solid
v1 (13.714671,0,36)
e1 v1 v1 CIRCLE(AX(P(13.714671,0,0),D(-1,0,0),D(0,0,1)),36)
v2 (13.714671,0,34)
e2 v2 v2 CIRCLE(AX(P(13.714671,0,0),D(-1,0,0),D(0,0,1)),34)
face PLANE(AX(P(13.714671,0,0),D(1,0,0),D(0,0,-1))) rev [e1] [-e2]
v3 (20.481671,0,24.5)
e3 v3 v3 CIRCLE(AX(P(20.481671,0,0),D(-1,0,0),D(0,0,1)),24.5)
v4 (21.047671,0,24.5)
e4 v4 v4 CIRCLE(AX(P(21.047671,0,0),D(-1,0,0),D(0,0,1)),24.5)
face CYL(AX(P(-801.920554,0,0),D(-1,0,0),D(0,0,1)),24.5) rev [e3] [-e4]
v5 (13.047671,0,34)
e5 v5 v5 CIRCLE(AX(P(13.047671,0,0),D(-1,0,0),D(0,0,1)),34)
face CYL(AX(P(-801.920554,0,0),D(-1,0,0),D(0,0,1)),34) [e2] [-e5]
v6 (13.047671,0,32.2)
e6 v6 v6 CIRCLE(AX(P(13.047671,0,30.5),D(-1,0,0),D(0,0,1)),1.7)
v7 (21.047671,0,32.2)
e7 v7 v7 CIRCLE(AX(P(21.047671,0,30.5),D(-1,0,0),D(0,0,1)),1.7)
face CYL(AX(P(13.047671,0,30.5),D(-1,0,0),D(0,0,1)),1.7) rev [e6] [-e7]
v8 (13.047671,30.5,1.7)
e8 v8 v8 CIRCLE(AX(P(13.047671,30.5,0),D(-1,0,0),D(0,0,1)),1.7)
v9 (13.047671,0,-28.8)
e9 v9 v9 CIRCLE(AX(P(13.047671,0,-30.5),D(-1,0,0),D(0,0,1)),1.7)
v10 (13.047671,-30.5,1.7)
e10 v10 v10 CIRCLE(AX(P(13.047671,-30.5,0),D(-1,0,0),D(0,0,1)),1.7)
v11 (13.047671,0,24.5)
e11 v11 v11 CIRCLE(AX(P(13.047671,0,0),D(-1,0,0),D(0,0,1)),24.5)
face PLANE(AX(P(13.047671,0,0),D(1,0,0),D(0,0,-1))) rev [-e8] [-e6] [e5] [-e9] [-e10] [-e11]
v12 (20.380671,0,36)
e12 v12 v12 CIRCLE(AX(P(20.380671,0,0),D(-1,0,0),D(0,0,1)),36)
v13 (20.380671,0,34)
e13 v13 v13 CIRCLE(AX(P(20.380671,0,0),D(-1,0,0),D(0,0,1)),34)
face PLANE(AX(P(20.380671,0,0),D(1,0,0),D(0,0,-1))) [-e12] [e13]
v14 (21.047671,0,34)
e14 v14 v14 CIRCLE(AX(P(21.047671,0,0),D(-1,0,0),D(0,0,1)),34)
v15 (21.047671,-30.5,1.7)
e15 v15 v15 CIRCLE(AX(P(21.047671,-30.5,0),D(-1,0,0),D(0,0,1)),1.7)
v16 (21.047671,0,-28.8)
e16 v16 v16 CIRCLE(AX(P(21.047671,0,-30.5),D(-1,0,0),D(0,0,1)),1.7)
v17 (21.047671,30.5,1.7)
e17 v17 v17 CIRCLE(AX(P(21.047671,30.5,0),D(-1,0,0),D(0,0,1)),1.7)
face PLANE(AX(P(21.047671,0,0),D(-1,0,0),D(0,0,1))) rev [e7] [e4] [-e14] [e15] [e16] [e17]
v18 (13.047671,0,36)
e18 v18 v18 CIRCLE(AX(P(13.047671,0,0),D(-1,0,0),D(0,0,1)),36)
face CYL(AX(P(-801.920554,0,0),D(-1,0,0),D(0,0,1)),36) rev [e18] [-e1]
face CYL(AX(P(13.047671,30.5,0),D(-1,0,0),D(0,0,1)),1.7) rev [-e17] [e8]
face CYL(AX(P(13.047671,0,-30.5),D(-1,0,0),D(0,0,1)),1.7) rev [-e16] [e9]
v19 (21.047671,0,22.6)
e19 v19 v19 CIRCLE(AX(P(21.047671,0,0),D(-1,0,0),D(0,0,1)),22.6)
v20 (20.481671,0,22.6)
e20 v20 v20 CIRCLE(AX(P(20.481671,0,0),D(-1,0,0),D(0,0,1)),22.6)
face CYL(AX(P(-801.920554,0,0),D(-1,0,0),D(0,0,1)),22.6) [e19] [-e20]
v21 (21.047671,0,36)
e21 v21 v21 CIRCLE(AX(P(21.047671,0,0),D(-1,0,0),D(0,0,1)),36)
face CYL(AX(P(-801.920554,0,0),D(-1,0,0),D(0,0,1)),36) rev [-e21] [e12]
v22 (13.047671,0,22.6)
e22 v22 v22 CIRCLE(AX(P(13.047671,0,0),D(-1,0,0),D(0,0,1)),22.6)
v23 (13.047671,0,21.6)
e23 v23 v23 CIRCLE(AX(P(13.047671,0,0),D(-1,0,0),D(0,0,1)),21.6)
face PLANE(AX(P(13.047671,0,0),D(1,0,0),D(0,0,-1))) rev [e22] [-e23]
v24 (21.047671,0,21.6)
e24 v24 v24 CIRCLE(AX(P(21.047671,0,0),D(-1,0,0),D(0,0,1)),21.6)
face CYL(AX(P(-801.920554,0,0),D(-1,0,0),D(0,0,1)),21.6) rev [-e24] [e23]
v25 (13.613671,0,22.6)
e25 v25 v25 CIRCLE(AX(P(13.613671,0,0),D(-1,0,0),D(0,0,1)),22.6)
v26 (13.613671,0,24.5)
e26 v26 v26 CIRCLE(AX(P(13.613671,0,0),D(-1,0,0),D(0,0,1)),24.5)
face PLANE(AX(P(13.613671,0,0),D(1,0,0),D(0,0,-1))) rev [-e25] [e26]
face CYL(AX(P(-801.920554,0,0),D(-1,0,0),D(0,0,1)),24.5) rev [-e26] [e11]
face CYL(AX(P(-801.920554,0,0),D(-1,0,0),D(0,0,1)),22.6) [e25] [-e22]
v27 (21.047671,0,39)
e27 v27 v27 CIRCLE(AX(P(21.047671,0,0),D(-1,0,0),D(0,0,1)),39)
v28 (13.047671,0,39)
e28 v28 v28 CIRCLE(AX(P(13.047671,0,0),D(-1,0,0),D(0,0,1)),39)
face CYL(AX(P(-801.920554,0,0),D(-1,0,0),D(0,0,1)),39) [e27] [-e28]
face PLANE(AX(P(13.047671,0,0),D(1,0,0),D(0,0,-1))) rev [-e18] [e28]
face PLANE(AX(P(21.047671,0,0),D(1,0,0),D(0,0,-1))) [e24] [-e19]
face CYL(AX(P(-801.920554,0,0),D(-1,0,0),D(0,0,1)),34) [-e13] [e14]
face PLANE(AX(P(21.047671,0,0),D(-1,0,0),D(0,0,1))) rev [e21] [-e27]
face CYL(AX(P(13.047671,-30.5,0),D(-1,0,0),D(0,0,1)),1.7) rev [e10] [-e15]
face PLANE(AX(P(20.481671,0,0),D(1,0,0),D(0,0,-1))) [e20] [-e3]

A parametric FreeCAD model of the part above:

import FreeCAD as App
import Part
import Sketcher
Q = App.Units.Quantity


def add_polygon(sketch, points):
    """Adds a closed chain of lines whose ends are joined by coincident constraints."""
    first, n = sketch.GeometryCount, len(points)
    for a, b in zip(points, points[1:] + points[:1]):
        sketch.addGeometry(Part.LineSegment(App.Vector(*a, 0), App.Vector(*b, 0)), False)
    for i in range(n):
        sketch.addConstraint(Sketcher.Constraint("Coincident", first + i, 2, first + (i + 1) % n, 1))

doc = App.newDocument("Part")
params = doc.addObject("Spreadsheet::Sheet", "Params")
for row, (alias, value) in enumerate([
    ("sketch1_width", "8 mm"),
    ("sketch1_height", "2 mm"),
    ("sketch1_height2", "3 mm"),
    ("sketch1_height3", "1 mm"),
    ("sketch1_height4", "9.5 mm"),
    ("revolution_angle", "360 deg"),
    ("sketch2_diameter", "3.4 mm"),
    ("hole_diameter", "3.4 mm"),
    ("hole_depth", "8 mm"),
], start=1):
    params.set(f"A{row}", alias)
    params.set(f"B{row}", "=" + value)
    params.setAlias(f"B{row}", alias)

body = doc.addObject("PartDesign::Body", "Body")

sketch1 = doc.addObject("Sketcher::SketchObject", "Sketch")
body.addObject(sketch1)
sketch1.AttachmentSupport = (doc.XY_Plane, [""])
sketch1.MapMode = "FlatFace"
add_polygon(sketch1, [(20.481671, 24.5), (21.047671, 24.5), (21.047671, 34), (20.380671, 34), (20.380671, 36), (21.047671, 36), (21.047671, 39), (13.047671, 39), (13.047671, 36), (13.714671, 36), (13.714671, 34), (13.047671, 34), (13.047671, 24.5), (13.613671, 24.5), (13.613671, 22.6), (13.047671, 22.6), (13.047671, 21.6), (21.047671, 21.6), (21.047671, 22.6), (20.481671, 22.6)])
sketch1.addConstraint([
    Sketcher.Constraint("Horizontal", 0),
    Sketcher.Constraint("Vertical", 1),
    Sketcher.Constraint("Horizontal", 2),
    Sketcher.Constraint("Vertical", 3),
    Sketcher.Constraint("Horizontal", 4),
    Sketcher.Constraint("Vertical", 5),
    Sketcher.Constraint("Horizontal", 6),
    Sketcher.Constraint("Vertical", 7),
    Sketcher.Constraint("Horizontal", 8),
    Sketcher.Constraint("Vertical", 9),
    Sketcher.Constraint("Horizontal", 10),
    Sketcher.Constraint("Vertical", 11),
    Sketcher.Constraint("Horizontal", 12),
    Sketcher.Constraint("Vertical", 13),
    Sketcher.Constraint("Horizontal", 14),
    Sketcher.Constraint("Vertical", 15),
    Sketcher.Constraint("Horizontal", 16),
    Sketcher.Constraint("Vertical", 17),
    Sketcher.Constraint("Horizontal", 18),
    Sketcher.Constraint("Vertical", 19),
    Sketcher.Constraint("Horizontal", 4, 2, 7, 2),
    Sketcher.Constraint("Horizontal", 2, 2, 9, 2),
    Sketcher.Constraint("Horizontal", 0, 2, 11, 2),
    Sketcher.Constraint("Horizontal", 14, 2, 17, 2),
    Sketcher.Constraint("Vertical", 1, 2, 4, 2),
    Sketcher.Constraint("Vertical", 7, 2, 10, 2),
    Sketcher.Constraint("Vertical", 11, 2, 14, 2),
    Sketcher.Constraint("Vertical", 5, 2, 16, 2),
    Sketcher.Constraint("Equal", 4, 8),
    Sketcher.Constraint("Equal", 0, 12),
    Sketcher.Constraint("DistanceX", 6, 2, 6, 1, Q("8 mm")),
    Sketcher.Constraint("DistanceY", 3, 1, 3, 2, Q("2 mm")),
    Sketcher.Constraint("DistanceY", 5, 1, 5, 2, Q("3 mm")),
    Sketcher.Constraint("DistanceY", 15, 2, 15, 1, Q("1 mm")),
    Sketcher.Constraint("DistanceY", 1, 1, 1, 2, Q("9.5 mm")),
    Sketcher.Constraint("DistanceY", 13, 2, 13, 1, Q("1.9 mm")),
    Sketcher.Constraint("DistanceY", -1, 1, 1, 2, Q("34 mm")),
    Sketcher.Constraint("DistanceX", 0, 1, 0, 2, Q("0.566 mm")),
    Sketcher.Constraint("DistanceX", 2, 2, 2, 1, Q("0.667 mm")),
    Sketcher.Constraint("DistanceX", -1, 1, 0, 2, Q("21.047671 mm")),
])
sketch1.setExpression("Constraints[50]", "Params.sketch1_width")
sketch1.setExpression("Constraints[51]", "Params.sketch1_height")
sketch1.setExpression("Constraints[52]", "Params.sketch1_height2")
sketch1.setExpression("Constraints[53]", "Params.sketch1_height3")
sketch1.setExpression("Constraints[54]", "Params.sketch1_height4")
revolution = doc.addObject("PartDesign::Revolution", "Revolution")
body.addObject(revolution)
revolution.Profile = sketch1
revolution.ReferenceAxis = (sketch1, ["H_Axis"])
revolution.setExpression("Angle", "Params.revolution_angle")

sketch2 = doc.addObject("Sketcher::SketchObject", "Sketch001")
body.addObject(sketch2)
sketch2.AttachmentSupport = (doc.YZ_Plane, [""])
sketch2.MapMode = "FlatFace"
sketch2.AttachmentOffset = App.Placement(App.Vector(0, 0, 13.047671), App.Rotation())
sketch2.addGeometry([
    Part.Circle(App.Vector(-30.5, 0, 0), App.Vector(0, 0, 1), 1.7),
    Part.Circle(App.Vector(30.5, 0, 0), App.Vector(0, 0, 1), 1.7),
    Part.Circle(App.Vector(0, 30.5, 0), App.Vector(0, 0, 1), 1.7),
    Part.Circle(App.Vector(0, -30.5, 0), App.Vector(0, 0, 1), 1.7),
], False)
sketch2.addConstraint([
    Sketcher.Constraint("Equal", 0, 1),
    Sketcher.Constraint("Equal", 1, 2),
    Sketcher.Constraint("Equal", 2, 3),
    Sketcher.Constraint("Symmetric", 0, 3, 1, 3, -1, 1),
    Sketcher.Constraint("Symmetric", 2, 3, 3, 3, -1, 1),
    Sketcher.Constraint("PointOnObject", 0, 3, -1),
    Sketcher.Constraint("PointOnObject", 2, 3, -2),
    Sketcher.Constraint("Diameter", 0, Q("3.4 mm")),
    Sketcher.Constraint("DistanceX", 0, 3, 1, 3, Q("61 mm")),
    Sketcher.Constraint("DistanceY", 3, 3, 2, 3, Q("61 mm")),
])
sketch2.setExpression("Constraints[7]", "Params.sketch2_diameter")
doc.recompute()
hole = doc.addObject("PartDesign::Hole", "Hole")
body.addObject(hole)
hole.Profile = sketch2
hole.ThreadType = "None"
hole.setExpression("Diameter", "Params.hole_diameter")
hole.DepthType = "Dimension"
hole.setExpression("Depth", "Params.hole_depth")
hole.DrillPoint = "Angled"
hole.DrillPointAngle = 118
hole.Reversed = True

doc.recompute()
